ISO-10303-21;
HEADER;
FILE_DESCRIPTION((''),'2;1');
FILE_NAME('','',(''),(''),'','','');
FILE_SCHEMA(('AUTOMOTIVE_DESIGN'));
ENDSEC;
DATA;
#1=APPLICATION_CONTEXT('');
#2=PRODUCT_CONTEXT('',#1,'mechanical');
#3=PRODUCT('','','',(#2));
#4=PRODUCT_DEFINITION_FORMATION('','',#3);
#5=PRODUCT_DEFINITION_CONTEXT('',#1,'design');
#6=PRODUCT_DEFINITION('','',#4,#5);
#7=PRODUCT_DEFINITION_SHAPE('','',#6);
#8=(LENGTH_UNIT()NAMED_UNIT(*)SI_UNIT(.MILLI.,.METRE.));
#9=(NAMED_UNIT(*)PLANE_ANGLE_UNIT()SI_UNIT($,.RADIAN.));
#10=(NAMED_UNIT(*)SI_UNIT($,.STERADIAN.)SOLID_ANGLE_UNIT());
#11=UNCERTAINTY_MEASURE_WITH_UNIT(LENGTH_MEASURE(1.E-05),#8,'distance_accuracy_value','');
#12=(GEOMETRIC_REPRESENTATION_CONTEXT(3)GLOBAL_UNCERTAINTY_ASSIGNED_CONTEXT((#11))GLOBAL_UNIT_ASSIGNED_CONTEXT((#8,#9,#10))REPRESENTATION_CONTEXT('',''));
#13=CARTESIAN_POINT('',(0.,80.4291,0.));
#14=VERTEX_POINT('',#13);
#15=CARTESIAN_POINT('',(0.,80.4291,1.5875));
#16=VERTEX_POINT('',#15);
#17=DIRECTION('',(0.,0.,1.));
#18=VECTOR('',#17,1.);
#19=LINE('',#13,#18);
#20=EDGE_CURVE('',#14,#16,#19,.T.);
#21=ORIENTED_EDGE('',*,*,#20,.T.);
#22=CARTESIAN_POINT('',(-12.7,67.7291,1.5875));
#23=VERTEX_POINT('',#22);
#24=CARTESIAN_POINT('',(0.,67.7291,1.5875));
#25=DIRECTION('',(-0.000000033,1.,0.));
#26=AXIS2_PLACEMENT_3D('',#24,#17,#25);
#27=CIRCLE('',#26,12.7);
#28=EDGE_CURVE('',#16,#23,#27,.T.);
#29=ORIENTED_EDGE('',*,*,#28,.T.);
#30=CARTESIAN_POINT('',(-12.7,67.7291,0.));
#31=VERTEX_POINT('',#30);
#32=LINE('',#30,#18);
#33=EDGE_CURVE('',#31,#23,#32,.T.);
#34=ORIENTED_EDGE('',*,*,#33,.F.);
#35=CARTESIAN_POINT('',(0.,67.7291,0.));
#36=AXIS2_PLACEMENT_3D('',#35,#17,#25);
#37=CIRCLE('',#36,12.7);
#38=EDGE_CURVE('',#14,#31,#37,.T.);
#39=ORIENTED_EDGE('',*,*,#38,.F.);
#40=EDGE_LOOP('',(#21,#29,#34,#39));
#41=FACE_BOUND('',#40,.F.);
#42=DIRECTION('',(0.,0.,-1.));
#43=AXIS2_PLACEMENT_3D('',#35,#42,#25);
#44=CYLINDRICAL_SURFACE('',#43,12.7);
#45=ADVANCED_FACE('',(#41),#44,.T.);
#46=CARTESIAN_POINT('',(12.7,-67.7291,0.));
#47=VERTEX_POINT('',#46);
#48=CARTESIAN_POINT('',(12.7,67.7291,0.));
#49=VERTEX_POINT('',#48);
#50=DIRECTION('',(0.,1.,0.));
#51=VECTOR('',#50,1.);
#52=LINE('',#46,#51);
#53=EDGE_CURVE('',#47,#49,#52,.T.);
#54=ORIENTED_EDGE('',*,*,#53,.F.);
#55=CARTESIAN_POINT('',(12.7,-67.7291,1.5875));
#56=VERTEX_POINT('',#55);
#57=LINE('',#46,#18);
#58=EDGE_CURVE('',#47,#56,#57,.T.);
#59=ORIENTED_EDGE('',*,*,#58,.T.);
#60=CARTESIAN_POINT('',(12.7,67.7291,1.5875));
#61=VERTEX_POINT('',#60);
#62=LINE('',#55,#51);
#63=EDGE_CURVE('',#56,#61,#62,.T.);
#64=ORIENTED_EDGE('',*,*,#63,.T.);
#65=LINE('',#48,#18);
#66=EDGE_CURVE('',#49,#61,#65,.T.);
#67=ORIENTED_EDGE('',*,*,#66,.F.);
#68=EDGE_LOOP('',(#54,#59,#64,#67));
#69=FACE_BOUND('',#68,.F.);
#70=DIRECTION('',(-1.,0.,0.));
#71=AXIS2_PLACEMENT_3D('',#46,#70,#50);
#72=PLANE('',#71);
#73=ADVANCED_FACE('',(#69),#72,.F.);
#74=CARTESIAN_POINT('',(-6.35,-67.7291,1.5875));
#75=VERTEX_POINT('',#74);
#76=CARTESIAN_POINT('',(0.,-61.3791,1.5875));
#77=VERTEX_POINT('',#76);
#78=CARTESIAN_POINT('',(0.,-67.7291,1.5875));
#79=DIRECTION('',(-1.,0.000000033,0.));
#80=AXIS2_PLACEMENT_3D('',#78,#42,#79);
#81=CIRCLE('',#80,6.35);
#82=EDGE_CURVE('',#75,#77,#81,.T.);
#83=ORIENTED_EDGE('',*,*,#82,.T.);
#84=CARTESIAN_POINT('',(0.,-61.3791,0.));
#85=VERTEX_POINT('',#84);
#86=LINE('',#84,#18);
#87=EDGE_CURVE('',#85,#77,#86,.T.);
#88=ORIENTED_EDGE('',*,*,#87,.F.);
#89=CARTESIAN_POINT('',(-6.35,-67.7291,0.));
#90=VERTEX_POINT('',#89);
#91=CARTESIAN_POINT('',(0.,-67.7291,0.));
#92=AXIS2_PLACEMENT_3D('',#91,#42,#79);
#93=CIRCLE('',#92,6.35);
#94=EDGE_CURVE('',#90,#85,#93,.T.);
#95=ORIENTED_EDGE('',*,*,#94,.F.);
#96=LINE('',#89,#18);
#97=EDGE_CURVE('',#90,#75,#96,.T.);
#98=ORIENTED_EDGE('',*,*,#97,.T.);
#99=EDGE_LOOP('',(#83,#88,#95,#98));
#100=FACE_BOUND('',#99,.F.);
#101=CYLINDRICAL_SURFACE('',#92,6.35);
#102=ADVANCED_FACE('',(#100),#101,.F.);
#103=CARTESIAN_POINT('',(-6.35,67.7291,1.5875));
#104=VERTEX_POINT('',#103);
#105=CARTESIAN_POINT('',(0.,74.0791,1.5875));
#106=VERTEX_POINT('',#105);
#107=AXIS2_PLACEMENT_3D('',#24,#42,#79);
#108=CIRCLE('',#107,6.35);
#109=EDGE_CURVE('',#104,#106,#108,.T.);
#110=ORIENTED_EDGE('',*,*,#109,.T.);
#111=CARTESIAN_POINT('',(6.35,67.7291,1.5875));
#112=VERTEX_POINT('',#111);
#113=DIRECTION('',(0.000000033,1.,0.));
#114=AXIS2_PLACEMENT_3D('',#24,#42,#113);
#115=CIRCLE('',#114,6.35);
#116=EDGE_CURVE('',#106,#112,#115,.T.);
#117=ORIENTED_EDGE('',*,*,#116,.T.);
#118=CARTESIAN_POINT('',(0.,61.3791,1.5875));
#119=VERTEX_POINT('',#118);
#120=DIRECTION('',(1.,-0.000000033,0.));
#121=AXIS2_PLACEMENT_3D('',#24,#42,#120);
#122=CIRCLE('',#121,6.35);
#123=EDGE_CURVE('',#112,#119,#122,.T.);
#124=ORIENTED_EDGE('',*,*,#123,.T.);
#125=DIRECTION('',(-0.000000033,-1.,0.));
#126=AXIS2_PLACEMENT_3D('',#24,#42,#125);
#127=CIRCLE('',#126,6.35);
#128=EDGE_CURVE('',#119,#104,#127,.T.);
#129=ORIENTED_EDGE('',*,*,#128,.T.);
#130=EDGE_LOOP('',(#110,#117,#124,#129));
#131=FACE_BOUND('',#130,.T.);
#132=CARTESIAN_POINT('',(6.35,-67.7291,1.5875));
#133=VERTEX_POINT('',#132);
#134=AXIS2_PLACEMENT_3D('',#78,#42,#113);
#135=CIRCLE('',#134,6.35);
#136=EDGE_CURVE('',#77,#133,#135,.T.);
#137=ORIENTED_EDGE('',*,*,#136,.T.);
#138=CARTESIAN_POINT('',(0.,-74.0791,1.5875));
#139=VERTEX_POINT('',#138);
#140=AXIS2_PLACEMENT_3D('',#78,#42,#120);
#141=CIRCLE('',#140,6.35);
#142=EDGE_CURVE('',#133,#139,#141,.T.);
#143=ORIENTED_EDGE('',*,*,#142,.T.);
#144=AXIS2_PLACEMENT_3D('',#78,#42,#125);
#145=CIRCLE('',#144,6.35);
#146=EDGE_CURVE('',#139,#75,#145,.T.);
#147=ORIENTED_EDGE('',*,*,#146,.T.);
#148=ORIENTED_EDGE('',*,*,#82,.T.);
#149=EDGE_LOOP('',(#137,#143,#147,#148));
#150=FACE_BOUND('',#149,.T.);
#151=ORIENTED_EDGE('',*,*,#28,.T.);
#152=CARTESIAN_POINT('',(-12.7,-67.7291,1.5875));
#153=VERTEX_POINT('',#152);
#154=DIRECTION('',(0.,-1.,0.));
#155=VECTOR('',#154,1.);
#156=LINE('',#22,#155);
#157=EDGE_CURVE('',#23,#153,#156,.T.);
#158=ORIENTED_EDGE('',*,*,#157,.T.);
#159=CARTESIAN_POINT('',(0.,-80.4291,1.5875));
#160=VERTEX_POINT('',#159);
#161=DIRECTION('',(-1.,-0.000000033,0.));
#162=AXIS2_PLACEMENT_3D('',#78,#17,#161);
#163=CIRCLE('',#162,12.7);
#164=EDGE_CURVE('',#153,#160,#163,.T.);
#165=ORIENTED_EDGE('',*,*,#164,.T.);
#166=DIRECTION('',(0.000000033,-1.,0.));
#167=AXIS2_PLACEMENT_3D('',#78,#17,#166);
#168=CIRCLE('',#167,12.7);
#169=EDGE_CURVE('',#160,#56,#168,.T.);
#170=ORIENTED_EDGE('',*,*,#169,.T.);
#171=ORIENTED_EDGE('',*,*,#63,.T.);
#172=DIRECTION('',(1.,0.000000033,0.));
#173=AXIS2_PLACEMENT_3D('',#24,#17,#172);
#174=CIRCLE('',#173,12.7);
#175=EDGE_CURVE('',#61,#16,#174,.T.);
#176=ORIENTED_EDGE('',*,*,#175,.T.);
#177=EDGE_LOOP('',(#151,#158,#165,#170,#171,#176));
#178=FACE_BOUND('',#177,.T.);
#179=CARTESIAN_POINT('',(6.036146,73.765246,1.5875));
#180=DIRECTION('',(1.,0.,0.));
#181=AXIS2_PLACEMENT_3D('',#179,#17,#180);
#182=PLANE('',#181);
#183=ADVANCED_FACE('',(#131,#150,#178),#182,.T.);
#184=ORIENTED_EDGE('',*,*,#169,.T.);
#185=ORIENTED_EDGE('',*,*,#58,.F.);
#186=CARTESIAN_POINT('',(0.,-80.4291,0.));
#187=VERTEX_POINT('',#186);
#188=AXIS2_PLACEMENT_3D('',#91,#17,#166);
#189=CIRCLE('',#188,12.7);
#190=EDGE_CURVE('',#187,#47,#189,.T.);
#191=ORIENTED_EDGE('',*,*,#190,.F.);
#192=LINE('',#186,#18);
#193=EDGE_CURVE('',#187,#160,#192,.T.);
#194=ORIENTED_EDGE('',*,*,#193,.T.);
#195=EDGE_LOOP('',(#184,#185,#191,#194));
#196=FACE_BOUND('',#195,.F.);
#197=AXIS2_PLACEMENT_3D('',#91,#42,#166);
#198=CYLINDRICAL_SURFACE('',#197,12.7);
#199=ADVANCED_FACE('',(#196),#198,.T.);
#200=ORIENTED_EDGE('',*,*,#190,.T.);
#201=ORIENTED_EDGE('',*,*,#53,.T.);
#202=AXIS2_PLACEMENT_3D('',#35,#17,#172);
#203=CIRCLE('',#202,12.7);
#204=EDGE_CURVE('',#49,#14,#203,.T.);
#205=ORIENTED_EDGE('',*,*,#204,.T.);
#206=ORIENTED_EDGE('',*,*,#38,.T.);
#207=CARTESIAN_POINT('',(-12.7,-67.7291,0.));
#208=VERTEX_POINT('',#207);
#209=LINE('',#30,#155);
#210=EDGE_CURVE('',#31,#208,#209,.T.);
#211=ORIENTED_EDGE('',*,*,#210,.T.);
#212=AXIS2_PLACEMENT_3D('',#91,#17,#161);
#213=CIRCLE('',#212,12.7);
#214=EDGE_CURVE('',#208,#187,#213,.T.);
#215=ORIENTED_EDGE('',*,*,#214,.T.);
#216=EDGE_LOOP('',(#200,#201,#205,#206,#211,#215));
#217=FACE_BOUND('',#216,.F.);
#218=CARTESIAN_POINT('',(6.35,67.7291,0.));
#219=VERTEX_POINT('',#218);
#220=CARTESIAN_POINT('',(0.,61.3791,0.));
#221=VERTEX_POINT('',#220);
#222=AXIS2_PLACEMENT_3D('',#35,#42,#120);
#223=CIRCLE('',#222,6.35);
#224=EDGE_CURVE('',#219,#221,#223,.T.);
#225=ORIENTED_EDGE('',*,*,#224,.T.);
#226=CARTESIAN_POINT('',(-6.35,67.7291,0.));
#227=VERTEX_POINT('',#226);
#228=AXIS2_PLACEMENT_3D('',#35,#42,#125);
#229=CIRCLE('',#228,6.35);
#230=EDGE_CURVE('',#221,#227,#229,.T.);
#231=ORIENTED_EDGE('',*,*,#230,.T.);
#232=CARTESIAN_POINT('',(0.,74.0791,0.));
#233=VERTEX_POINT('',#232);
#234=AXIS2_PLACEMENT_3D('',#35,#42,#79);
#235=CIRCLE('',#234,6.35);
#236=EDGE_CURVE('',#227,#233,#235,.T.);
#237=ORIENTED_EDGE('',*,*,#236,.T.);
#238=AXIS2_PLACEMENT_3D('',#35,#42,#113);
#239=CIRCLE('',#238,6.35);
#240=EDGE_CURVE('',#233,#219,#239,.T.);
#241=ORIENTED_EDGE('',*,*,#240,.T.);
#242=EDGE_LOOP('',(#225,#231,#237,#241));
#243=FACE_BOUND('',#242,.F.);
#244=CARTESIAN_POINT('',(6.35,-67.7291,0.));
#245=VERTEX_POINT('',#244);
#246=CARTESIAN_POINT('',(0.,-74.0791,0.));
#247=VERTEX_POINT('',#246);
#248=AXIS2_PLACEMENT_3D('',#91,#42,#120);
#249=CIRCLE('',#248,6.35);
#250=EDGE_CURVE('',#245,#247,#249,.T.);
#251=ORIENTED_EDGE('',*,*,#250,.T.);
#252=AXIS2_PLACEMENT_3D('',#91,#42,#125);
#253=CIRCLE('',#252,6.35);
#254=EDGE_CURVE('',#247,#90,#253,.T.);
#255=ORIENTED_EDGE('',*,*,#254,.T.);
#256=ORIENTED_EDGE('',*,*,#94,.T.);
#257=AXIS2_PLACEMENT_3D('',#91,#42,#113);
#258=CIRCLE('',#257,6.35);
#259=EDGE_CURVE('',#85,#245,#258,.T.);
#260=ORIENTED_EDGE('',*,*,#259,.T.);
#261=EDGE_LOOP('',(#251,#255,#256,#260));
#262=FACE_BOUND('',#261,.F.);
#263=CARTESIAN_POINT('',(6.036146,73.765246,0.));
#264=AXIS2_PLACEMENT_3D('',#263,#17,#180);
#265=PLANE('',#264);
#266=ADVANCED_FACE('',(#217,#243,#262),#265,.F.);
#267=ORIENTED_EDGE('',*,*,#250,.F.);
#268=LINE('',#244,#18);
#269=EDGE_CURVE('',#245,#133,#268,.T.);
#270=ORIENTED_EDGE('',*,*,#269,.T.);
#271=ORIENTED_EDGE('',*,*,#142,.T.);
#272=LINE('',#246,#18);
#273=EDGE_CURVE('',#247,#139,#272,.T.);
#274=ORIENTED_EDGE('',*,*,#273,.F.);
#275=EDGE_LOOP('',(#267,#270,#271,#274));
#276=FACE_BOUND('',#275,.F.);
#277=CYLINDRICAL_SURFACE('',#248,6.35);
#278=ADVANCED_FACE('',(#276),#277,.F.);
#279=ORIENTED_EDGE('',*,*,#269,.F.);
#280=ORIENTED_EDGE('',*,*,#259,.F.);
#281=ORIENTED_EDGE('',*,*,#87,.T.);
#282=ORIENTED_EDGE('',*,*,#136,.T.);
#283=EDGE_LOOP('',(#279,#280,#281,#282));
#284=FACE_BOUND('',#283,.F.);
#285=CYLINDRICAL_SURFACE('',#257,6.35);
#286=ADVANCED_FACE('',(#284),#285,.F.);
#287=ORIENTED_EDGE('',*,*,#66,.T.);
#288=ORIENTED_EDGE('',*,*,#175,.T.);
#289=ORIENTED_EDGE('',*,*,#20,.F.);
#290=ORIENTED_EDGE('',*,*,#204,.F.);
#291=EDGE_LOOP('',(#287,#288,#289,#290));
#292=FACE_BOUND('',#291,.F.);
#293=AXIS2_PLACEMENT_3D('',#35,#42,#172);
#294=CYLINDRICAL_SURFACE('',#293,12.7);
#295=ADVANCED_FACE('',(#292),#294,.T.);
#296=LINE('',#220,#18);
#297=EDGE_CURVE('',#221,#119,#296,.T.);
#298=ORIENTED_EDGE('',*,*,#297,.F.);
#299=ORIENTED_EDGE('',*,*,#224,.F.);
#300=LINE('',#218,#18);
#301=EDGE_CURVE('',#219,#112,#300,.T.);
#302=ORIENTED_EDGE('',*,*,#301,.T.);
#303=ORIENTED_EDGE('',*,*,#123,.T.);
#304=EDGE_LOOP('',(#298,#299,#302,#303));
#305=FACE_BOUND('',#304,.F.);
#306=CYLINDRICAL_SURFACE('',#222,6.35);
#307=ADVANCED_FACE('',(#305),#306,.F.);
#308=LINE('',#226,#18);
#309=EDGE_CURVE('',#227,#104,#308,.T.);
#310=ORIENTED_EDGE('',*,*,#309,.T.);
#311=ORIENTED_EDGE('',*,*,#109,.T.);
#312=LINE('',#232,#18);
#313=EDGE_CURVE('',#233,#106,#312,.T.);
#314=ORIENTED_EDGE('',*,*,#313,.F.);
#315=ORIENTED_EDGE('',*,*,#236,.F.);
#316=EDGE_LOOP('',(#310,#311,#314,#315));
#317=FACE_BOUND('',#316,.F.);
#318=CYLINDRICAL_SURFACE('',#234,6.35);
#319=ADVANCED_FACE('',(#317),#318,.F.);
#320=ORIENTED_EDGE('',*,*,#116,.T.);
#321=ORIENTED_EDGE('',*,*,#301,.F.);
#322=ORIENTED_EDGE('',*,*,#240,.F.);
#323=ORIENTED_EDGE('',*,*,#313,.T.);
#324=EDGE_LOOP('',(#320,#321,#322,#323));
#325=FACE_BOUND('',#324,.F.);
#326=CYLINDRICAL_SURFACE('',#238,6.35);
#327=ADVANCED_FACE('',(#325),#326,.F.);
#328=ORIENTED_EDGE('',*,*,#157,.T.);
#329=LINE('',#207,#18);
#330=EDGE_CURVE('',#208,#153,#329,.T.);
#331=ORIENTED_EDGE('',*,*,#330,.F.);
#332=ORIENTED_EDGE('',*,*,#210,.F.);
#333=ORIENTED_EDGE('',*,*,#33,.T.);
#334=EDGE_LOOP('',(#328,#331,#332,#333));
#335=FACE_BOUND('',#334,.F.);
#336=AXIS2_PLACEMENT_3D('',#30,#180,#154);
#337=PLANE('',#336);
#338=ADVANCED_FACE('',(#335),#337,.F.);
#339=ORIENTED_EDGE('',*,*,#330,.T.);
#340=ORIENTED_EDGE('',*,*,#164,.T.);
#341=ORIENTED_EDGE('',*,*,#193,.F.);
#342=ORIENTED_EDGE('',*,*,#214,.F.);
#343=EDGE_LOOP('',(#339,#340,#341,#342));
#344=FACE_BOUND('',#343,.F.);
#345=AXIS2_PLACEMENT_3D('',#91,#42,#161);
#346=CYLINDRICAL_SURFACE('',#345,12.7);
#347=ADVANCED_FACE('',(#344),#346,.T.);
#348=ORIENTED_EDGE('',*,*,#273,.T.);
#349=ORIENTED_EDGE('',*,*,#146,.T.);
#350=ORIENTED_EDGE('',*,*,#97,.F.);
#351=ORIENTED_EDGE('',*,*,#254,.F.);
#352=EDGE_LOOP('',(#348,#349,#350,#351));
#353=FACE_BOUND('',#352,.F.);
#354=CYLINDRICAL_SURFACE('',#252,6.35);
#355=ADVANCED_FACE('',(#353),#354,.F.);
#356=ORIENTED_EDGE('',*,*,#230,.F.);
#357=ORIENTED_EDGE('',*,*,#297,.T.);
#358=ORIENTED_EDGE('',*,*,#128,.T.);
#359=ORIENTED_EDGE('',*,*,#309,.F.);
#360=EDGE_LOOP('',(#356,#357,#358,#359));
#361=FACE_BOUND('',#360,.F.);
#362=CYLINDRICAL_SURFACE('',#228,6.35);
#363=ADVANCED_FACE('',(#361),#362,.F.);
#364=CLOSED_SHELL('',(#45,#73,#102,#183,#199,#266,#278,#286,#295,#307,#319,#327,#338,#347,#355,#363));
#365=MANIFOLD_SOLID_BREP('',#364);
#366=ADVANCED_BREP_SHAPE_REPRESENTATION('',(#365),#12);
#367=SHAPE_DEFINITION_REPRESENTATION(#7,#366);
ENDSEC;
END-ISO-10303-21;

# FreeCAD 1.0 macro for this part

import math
import FreeCAD as App
import Part
import Sketcher

V = App.Vector
Q = App.Units.Quantity

doc = App.newDocument("Part")
body = doc.addObject("PartDesign::Body", "Body")

# Sketch on XY plane
sketch1 = doc.addObject("Sketcher::SketchObject", "Sketch")
body.addObject(sketch1)
sketch1.AttachmentSupport = (doc.XY_Plane, [""])
sketch1.MapMode = "FlatFace"
sketch1.addGeometry([
    Part.ArcOfCircle(Part.Circle(V(0, -67.7291, 0), V(0, 0, 1), 12.7), math.radians(-89.999998), math.radians(-0.000002)),  # 0
    Part.LineSegment(V(12.7, -67.7291, 0), V(12.7, 67.7291, 0)),  # 1
    Part.ArcOfCircle(Part.Circle(V(0, 67.7291, 0), V(0, 0, 1), 12.7), math.radians(0.000002), math.radians(89.999998)),  # 2
    Part.ArcOfCircle(Part.Circle(V(0, 67.7291, 0), V(0, 0, 1), 12.7), math.radians(90.000002), math.radians(179.999998)),  # 3
    Part.LineSegment(V(-12.7, 67.7291, 0), V(-12.7, -67.7291, 0)),  # 4
    Part.ArcOfCircle(Part.Circle(V(0, -67.7291, 0), V(0, 0, 1), 12.7), math.radians(-179.999998), math.radians(-90.000002)),  # 5
    Part.ArcOfCircle(Part.Circle(V(0, 67.7291, 0), V(0, 0, 1), 6.35), math.radians(0.000002), math.radians(89.999998)),  # 6
    Part.ArcOfCircle(Part.Circle(V(0, 67.7291, 0), V(0, 0, 1), 6.35), math.radians(-89.999998), math.radians(-0.000002)),  # 7
    Part.ArcOfCircle(Part.Circle(V(0, 67.7291, 0), V(0, 0, 1), 6.35), math.radians(-179.999998), math.radians(-90.000002)),  # 8
    Part.ArcOfCircle(Part.Circle(V(0, 67.7291, 0), V(0, 0, 1), 6.35), math.radians(90.000002), math.radians(179.999998)),  # 9
    Part.ArcOfCircle(Part.Circle(V(0, -67.7291, 0), V(0, 0, 1), 6.35), math.radians(0.000002), math.radians(89.999998)),  # 10
    Part.ArcOfCircle(Part.Circle(V(0, -67.7291, 0), V(0, 0, 1), 6.35), math.radians(-89.999998), math.radians(-0.000002)),  # 11
    Part.ArcOfCircle(Part.Circle(V(0, -67.7291, 0), V(0, 0, 1), 6.35), math.radians(-179.999998), math.radians(-90.000002)),  # 12
    Part.ArcOfCircle(Part.Circle(V(0, -67.7291, 0), V(0, 0, 1), 6.35), math.radians(90.000002), math.radians(179.999998)),  # 13
], False)
sketch1.addConstraint([
    Sketcher.Constraint("Tangent", 0, 2, 1, 1),
    Sketcher.Constraint("Tangent", 1, 2, 2, 1),
    Sketcher.Constraint("Tangent", 2, 2, 3, 1),
    Sketcher.Constraint("Tangent", 3, 2, 4, 1),
    Sketcher.Constraint("Tangent", 4, 2, 5, 1),
    Sketcher.Constraint("Tangent", 5, 2, 0, 1),
    Sketcher.Constraint("Tangent", 6, 1, 7, 2),
    Sketcher.Constraint("Tangent", 7, 1, 8, 2),
    Sketcher.Constraint("Tangent", 8, 1, 9, 2),
    Sketcher.Constraint("Tangent", 9, 1, 6, 2),
    Sketcher.Constraint("Tangent", 10, 1, 11, 2),
    Sketcher.Constraint("Tangent", 11, 1, 12, 2),
    Sketcher.Constraint("Tangent", 12, 1, 13, 2),
    Sketcher.Constraint("Tangent", 13, 1, 10, 2),
    Sketcher.Constraint("Vertical", 1),
    Sketcher.Constraint("Vertical", 4),
    Sketcher.Constraint("Coincident", 6, 3, 2, 3),
    Sketcher.Constraint("Coincident", 10, 3, 0, 3),
    Sketcher.Constraint("Equal", 0, 2),
    Sketcher.Constraint("Equal", 2, 3),
    Sketcher.Constraint("Equal", 6, 7),
    Sketcher.Constraint("Equal", 9, 10),
    Sketcher.Constraint("Equal", 10, 11),
    Sketcher.Constraint("Symmetric", 0, 3, 2, 3, -1, 1),
    Sketcher.Constraint("PointOnObject", 2, 2, -2),
    Sketcher.Constraint("PointOnObject", 5, 2, -2),
    Sketcher.Constraint("PointOnObject", 7, 1, -2),
    Sketcher.Constraint("PointOnObject", 9, 1, -2),
    Sketcher.Constraint("PointOnObject", 11, 1, -2),
    Sketcher.Constraint("PointOnObject", 13, 1, -2),
    Sketcher.Constraint("Horizontal", 3, 2, 6, 1),
    Sketcher.Constraint("Horizontal", 6, 1, 8, 1),
    Sketcher.Constraint("Horizontal", 4, 2, 10, 1),
    Sketcher.Constraint("Horizontal", 10, 1, 12, 1),
    Sketcher.Constraint("Radius", 0, Q("0.5 in")),
    Sketcher.Constraint("Radius", 6, Q("0.25 in")),
    Sketcher.Constraint("DistanceY", 1, 1, 1, 2, Q("5.333 in")),
])
pad1 = doc.addObject("PartDesign::Pad", "Pad")
body.addObject(pad1)
pad1.Profile = sketch1
pad1.Length = Q("0.0625 in")

doc.recompute()
